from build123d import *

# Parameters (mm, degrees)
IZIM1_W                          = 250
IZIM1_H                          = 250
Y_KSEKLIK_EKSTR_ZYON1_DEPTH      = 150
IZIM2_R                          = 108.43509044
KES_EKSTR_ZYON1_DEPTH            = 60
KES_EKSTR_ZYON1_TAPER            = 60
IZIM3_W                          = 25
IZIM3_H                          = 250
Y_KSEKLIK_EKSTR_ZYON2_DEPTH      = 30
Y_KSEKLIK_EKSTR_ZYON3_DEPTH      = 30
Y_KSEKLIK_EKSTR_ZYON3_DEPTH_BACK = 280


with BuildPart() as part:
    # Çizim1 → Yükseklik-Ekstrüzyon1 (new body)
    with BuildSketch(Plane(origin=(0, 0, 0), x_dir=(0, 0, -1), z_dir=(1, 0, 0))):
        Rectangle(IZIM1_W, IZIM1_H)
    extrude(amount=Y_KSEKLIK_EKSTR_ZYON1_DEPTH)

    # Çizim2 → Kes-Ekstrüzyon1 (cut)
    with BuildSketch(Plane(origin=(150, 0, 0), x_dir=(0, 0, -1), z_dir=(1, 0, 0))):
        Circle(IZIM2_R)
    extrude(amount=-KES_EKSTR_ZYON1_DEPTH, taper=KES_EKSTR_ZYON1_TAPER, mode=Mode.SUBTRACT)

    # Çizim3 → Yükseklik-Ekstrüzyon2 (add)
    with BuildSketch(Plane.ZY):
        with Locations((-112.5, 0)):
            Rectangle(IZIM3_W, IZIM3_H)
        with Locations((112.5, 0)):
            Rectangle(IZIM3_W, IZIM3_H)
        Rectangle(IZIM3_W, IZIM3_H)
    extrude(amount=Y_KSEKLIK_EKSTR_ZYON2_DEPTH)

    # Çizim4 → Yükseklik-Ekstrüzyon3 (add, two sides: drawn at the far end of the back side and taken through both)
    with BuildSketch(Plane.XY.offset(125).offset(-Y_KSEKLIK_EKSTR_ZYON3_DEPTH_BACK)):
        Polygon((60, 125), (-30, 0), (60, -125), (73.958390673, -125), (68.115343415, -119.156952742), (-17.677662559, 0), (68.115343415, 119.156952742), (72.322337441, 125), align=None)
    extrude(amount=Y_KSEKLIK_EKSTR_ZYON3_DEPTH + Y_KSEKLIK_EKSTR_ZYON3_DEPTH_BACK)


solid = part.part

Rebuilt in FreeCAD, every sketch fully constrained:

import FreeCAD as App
import Part
import Sketcher
from FreeCAD import Vector
Q = App.Units.Quantity

doc = App.newDocument("Part")
body = doc.addObject("PartDesign::Body", "Body")

# Sketch on YZ plane
sketch1 = doc.addObject("Sketcher::SketchObject", "Sketch")
body.addObject(sketch1)
sketch1.AttachmentSupport = (doc.YZ_Plane, [""])
sketch1.MapMode = "FlatFace"
sketch1.addGeometry([
    Part.LineSegment(Vector(125, 125, 0), Vector(-125, 125, 0)),
    Part.LineSegment(Vector(-125, 125, 0), Vector(-125, -125, 0)),
    Part.LineSegment(Vector(-125, -125, 0), Vector(125, -125, 0)),
    Part.LineSegment(Vector(125, -125, 0), Vector(125, 125, 0)),
], False)
sketch1.addConstraint([
    Sketcher.Constraint("Coincident", 0, 2, 1, 1),
    Sketcher.Constraint("Coincident", 1, 2, 2, 1),
    Sketcher.Constraint("Coincident", 2, 2, 3, 1),
    Sketcher.Constraint("Coincident", 3, 2, 0, 1),
    Sketcher.Constraint("Horizontal", 0),
    Sketcher.Constraint("Vertical", 1),
    Sketcher.Constraint("Horizontal", 2),
    Sketcher.Constraint("Vertical", 3),
    Sketcher.Constraint("Symmetric", 0, 2, 2, 2, -1, 1),
    Sketcher.Constraint("Equal", 2, 1),
    Sketcher.Constraint("DistanceX", 0, 2, 0, 1, Q("250 mm")),
])
pad1 = doc.addObject("PartDesign::Pad", "Pad")
body.addObject(pad1)
pad1.Profile = sketch1
pad1.Length = 150

# Sketch on YZ plane
sketch2 = doc.addObject("Sketcher::SketchObject", "Sketch001")
body.addObject(sketch2)
sketch2.AttachmentSupport = (doc.YZ_Plane, [""])
sketch2.MapMode = "FlatFace"
sketch2.AttachmentOffset = App.Placement(Vector(0, 0, 150), App.Rotation())
sketch2.addGeometry(Part.Circle(Vector(0, 0, 0), Vector(0, 0, 1), 108), False)
sketch2.addConstraint([
    Sketcher.Constraint("Coincident", 0, 3, -1, 1),
    Sketcher.Constraint("Diameter", 0, Q("216.870181 mm")),
])
pocket1 = doc.addObject("PartDesign::Pocket", "Pocket")
body.addObject(pocket1)
pocket1.Profile = sketch2
pocket1.Length = 60
pocket1.TaperAngle = -60

# Sketch on YZ plane
sketch3 = doc.addObject("Sketcher::SketchObject", "Sketch002")
body.addObject(sketch3)
sketch3.AttachmentSupport = (doc.YZ_Plane, [""])
sketch3.MapMode = "FlatFace"
sketch3.addGeometry([
    Part.LineSegment(Vector(125, -125, 0), Vector(-125, -125, 0)),  # 0
    Part.LineSegment(Vector(-125, -125, 0), Vector(-125, -100, 0)),  # 1
    Part.LineSegment(Vector(-125, -100, 0), Vector(125, -100, 0)),  # 2
    Part.LineSegment(Vector(125, -100, 0), Vector(125, -125, 0)),  # 3
    Part.LineSegment(Vector(125, 100, 0), Vector(-125, 100, 0)),  # 4
    Part.LineSegment(Vector(-125, 100, 0), Vector(-125, 125, 0)),  # 5
    Part.LineSegment(Vector(-125, 125, 0), Vector(125, 125, 0)),  # 6
    Part.LineSegment(Vector(125, 125, 0), Vector(125, 100, 0)),  # 7
    Part.LineSegment(Vector(125, -12, 0), Vector(-125, -12, 0)),  # 8
    Part.LineSegment(Vector(-125, -12, 0), Vector(-125, 12, 0)),  # 9
    Part.LineSegment(Vector(-125, 12, 0), Vector(125, 12, 0)),  # 10
    Part.LineSegment(Vector(125, 12, 0), Vector(125, -12, 0)),  # 11
], False)
sketch3.addConstraint([
    Sketcher.Constraint("Coincident", 0, 2, 1, 1),
    Sketcher.Constraint("Coincident", 1, 2, 2, 1),
    Sketcher.Constraint("Coincident", 2, 2, 3, 1),
    Sketcher.Constraint("Coincident", 3, 2, 0, 1),
    Sketcher.Constraint("Coincident", 4, 2, 5, 1),
    Sketcher.Constraint("Coincident", 5, 2, 6, 1),
    Sketcher.Constraint("Coincident", 6, 2, 7, 1),
    Sketcher.Constraint("Coincident", 7, 2, 4, 1),
    Sketcher.Constraint("Coincident", 8, 2, 9, 1),
    Sketcher.Constraint("Coincident", 9, 2, 10, 1),
    Sketcher.Constraint("Coincident", 10, 2, 11, 1),
    Sketcher.Constraint("Coincident", 11, 2, 8, 1),
    Sketcher.Constraint("Horizontal", 0),
    Sketcher.Constraint("Vertical", 1),
    Sketcher.Constraint("Horizontal", 2),
    Sketcher.Constraint("Vertical", 3),
    Sketcher.Constraint("Horizontal", 4),
    Sketcher.Constraint("Vertical", 5),
    Sketcher.Constraint("Horizontal", 6),
    Sketcher.Constraint("Vertical", 7),
    Sketcher.Constraint("Horizontal", 8),
    Sketcher.Constraint("Vertical", 9),
    Sketcher.Constraint("Horizontal", 10),
    Sketcher.Constraint("Vertical", 11),
    Sketcher.Constraint("Symmetric", 2, 2, 4, 2, -1, 1),
    Sketcher.Constraint("Symmetric", 0, 2, 6, 2, -1, 1),
    Sketcher.Constraint("Symmetric", 8, 2, 10, 2, -1, 1),
    Sketcher.Constraint("Vertical", 1, 2, 4, 2),
    Sketcher.Constraint("Vertical", 5, 2, 8, 2),
    Sketcher.Constraint("Equal", 7, 9),
    Sketcher.Constraint("DistanceX", 0, 2, 0, 1, Q("250 mm")),
    Sketcher.Constraint("DistanceY", 1, 1, 1, 2, Q("25 mm")),
    Sketcher.Constraint("DistanceY", 0, 2, -1, 1, Q("125 mm")),
])
pad2 = doc.addObject("PartDesign::Pad", "Pad001")
body.addObject(pad2)
pad2.Profile = sketch3
pad2.Length = 30
pad2.Reversed = True

# Sketch on XY plane
sketch4 = doc.addObject("Sketcher::SketchObject", "Sketch003")
body.addObject(sketch4)
sketch4.AttachmentSupport = (doc.XY_Plane, [""])
sketch4.MapMode = "FlatFace"
sketch4.AttachmentOffset = App.Placement(Vector(0, 0, 125), App.Rotation())
sketch4.addGeometry([
    Part.LineSegment(Vector(60, 125, 0), Vector(-30, 0, 0)),  # 0
    Part.LineSegment(Vector(-30, 0, 0), Vector(60, -125, 0)),  # 1
    Part.LineSegment(Vector(60, -125, 0), Vector(74, -125, 0)),  # 2
    Part.LineSegment(Vector(74, -125, 0), Vector(68, -119, 0)),  # 3
    Part.LineSegment(Vector(68, -119, 0), Vector(-18, 0, 0)),  # 4
    Part.LineSegment(Vector(-18, 0, 0), Vector(68, 119, 0)),  # 5
    Part.LineSegment(Vector(68, 119, 0), Vector(72, 125, 0)),  # 6
    Part.LineSegment(Vector(72, 125, 0), Vector(60, 125, 0)),  # 7
], False)
sketch4.addConstraint([
    Sketcher.Constraint("Coincident", 0, 2, 1, 1),
    Sketcher.Constraint("Coincident", 1, 2, 2, 1),
    Sketcher.Constraint("Coincident", 2, 2, 3, 1),
    Sketcher.Constraint("Coincident", 3, 2, 4, 1),
    Sketcher.Constraint("Coincident", 4, 2, 5, 1),
    Sketcher.Constraint("Coincident", 5, 2, 6, 1),
    Sketcher.Constraint("Coincident", 6, 2, 7, 1),
    Sketcher.Constraint("Coincident", 7, 2, 0, 1),
    Sketcher.Constraint("Horizontal", 2),
    Sketcher.Constraint("Horizontal", 7),
    Sketcher.Constraint("Symmetric", 3, 2, 5, 2, -1),
    Sketcher.Constraint("Symmetric", 1, 2, 7, 2, -1),
    Sketcher.Constraint("PointOnObject", 0, 2, -1),
    Sketcher.Constraint("PointOnObject", 4, 2, -1),
    Sketcher.Constraint("Parallel", 1, 4),
    Sketcher.Constraint("Parallel", 5, 6),
    Sketcher.Constraint("Angle", 3, Q("135 deg")),
    Sketcher.Constraint("DistanceX", 0, 2, -1, 1, Q("30 mm")),
    Sketcher.Constraint("DistanceX", -1, 1, 1, 2, Q("60 mm")),
    Sketcher.Constraint("DistanceY", 1, 2, -1, 1, Q("125 mm")),
    Sketcher.Constraint("Distance", 6, Q("7.2 mm")),
    Sketcher.Constraint("DistanceX", 2, 1, 2, 2, Q("13.958391 mm")),
])
pad3 = doc.addObject("PartDesign::Pad", "Pad002")
body.addObject(pad3)
pad3.Profile = sketch4
pad3.Type = "TwoLengths"
pad3.Length = 30
pad3.Length2 = 280

doc.recompute()
